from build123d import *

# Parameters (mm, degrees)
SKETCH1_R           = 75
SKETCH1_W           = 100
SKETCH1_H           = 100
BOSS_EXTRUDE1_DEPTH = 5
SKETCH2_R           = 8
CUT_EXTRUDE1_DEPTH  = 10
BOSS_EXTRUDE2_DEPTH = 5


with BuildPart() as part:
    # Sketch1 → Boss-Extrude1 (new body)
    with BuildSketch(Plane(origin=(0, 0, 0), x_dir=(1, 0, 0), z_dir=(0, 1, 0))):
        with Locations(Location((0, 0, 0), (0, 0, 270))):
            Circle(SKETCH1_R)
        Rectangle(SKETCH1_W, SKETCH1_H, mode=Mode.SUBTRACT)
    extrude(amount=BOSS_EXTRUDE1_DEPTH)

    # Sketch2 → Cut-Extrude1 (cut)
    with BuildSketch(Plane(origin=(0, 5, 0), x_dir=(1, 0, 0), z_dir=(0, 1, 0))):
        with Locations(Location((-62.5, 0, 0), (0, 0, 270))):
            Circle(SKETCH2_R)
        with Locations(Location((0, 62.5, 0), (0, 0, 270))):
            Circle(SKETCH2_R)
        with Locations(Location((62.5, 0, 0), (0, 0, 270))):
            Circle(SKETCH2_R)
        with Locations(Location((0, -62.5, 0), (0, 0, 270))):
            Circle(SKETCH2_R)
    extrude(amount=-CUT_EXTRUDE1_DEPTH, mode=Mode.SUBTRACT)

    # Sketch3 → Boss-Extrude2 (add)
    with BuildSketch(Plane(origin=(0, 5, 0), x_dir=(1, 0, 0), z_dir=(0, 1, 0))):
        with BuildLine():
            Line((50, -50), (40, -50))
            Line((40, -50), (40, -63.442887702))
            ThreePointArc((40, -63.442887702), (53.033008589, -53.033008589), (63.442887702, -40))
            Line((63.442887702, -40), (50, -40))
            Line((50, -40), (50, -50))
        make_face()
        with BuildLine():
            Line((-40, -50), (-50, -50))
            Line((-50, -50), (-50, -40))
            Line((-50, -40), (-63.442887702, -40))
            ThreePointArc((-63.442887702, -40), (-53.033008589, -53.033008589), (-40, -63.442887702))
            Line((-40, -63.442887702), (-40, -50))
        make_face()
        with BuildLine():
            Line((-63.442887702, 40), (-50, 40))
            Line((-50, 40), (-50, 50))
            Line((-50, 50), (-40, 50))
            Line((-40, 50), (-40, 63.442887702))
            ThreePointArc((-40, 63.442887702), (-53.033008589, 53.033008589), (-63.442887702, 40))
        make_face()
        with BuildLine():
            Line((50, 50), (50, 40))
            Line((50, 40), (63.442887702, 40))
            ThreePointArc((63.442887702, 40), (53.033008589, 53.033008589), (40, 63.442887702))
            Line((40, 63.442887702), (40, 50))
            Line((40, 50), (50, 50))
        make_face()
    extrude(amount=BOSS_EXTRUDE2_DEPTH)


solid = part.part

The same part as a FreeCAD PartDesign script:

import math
import FreeCAD as App
import Part
import Sketcher
from FreeCAD import Vector
Q = App.Units.Quantity


def add_polygon(sketch, points):
    """Adds a closed chain of lines whose ends are joined by coincident constraints."""
    first, n = sketch.GeometryCount, len(points)
    for a, b in zip(points, points[1:] + points[:1]):
        sketch.addGeometry(Part.LineSegment(App.Vector(*a, 0), App.Vector(*b, 0)), False)
    for i in range(n):
        sketch.addConstraint(Sketcher.Constraint("Coincident", first + i, 2, first + (i + 1) % n, 1))

doc = App.newDocument("Part")
body = doc.addObject("PartDesign::Body", "Body")

sketch1 = body.newObject("Sketcher::SketchObject", "Sketch")
sketch1.AttachmentSupport = (doc.getObject("XZ_Plane"), [""])
sketch1.MapMode = "FlatFace"
sketch1.addGeometry(Part.Circle(Vector(0, 0, 0), Vector(0, 0, 1), 75), False)
add_polygon(sketch1, [(50, 50), (-50, 50), (-50, -50), (50, -50)])
sketch1.addConstraint([
    Sketcher.Constraint("Horizontal", 1),
    Sketcher.Constraint("Vertical", 2),
    Sketcher.Constraint("Horizontal", 3),
    Sketcher.Constraint("Vertical", 4),
    Sketcher.Constraint("Coincident", 0, 3, -1, 1),
    Sketcher.Constraint("Symmetric", 1, 2, 3, 2, -1, 1),
    Sketcher.Constraint("Equal", 3, 2),
    Sketcher.Constraint("Diameter", 0, Q("150 mm")),
    Sketcher.Constraint("DistanceX", 1, 2, 1, 1, Q("100 mm")),
])
pad1 = body.newObject("PartDesign::Pad", "Pad")
pad1.Profile = sketch1
pad1.Length = 5
pad1.Reversed = True

sketch2 = body.newObject("Sketcher::SketchObject", "Sketch001")
sketch2.AttachmentSupport = (doc.getObject("XZ_Plane"), [""])
sketch2.MapMode = "FlatFace"
sketch2.AttachmentOffset = App.Placement(Vector(0, 0, -5), App.Rotation())
sketch2.addGeometry([
    Part.Circle(Vector(-62, 0, 0), Vector(0, 0, 1), 8),
    Part.Circle(Vector(0, -62, 0), Vector(0, 0, 1), 8),
    Part.Circle(Vector(62, 0, 0), Vector(0, 0, 1), 8),
    Part.Circle(Vector(0, 62, 0), Vector(0, 0, 1), 8),
], False)
sketch2.addConstraint([
    Sketcher.Constraint("Equal", 0, 1),
    Sketcher.Constraint("Equal", 1, 2),
    Sketcher.Constraint("Equal", 2, 3),
    Sketcher.Constraint("Symmetric", 0, 3, 2, 3, -1, 1),
    Sketcher.Constraint("Symmetric", 1, 3, 3, 3, -1, 1),
    Sketcher.Constraint("PointOnObject", 0, 3, -1),
    Sketcher.Constraint("PointOnObject", 1, 3, -2),
    Sketcher.Constraint("Diameter", 0, Q("16 mm")),
    Sketcher.Constraint("DistanceX", 0, 3, 2, 3, Q("125 mm")),
    Sketcher.Constraint("DistanceY", 1, 3, 3, 3, Q("125 mm")),
])
pocket1 = body.newObject("PartDesign::Pocket", "Pocket")
pocket1.Profile = sketch2
pocket1.Length = 10
pocket1.Reversed = True

sketch3 = body.newObject("Sketcher::SketchObject", "Sketch002")
sketch3.AttachmentSupport = (doc.getObject("XZ_Plane"), [""])
sketch3.MapMode = "FlatFace"
sketch3.AttachmentOffset = App.Placement(Vector(0, 0, -5), App.Rotation())
sketch3.addGeometry([
    Part.LineSegment(Vector(50, 50, 0), Vector(40, 50, 0)),
    Part.LineSegment(Vector(40, 50, 0), Vector(40, 63, 0)),
    Part.ArcOfCircle(Part.Circle(Vector(0, 0, 0), Vector(0, 0, 1), 75), math.radians(32), math.radians(58)),
    Part.LineSegment(Vector(63, 40, 0), Vector(50, 40, 0)),
    Part.LineSegment(Vector(50, 40, 0), Vector(50, 50, 0)),
    Part.LineSegment(Vector(-40, 50, 0), Vector(-50, 50, 0)),
    Part.LineSegment(Vector(-50, 50, 0), Vector(-50, 40, 0)),
    Part.LineSegment(Vector(-50, 40, 0), Vector(-63, 40, 0)),
    Part.ArcOfCircle(Part.Circle(Vector(0, 0, 0), Vector(0, 0, 1), 75), math.radians(122), math.radians(148)),
    Part.LineSegment(Vector(-40, 63, 0), Vector(-40, 50, 0)),
    Part.LineSegment(Vector(-63, -40, 0), Vector(-50, -40, 0)),
    Part.LineSegment(Vector(-50, -40, 0), Vector(-50, -50, 0)),
    Part.LineSegment(Vector(-50, -50, 0), Vector(-40, -50, 0)),
    Part.LineSegment(Vector(-40, -50, 0), Vector(-40, -63, 0)),
    Part.ArcOfCircle(Part.Circle(Vector(0, 0, 0), Vector(0, 0, 1), 75), math.radians(-148), math.radians(-122)),
    Part.LineSegment(Vector(50, -50, 0), Vector(50, -40, 0)),
    Part.LineSegment(Vector(50, -40, 0), Vector(63, -40, 0)),
    Part.ArcOfCircle(Part.Circle(Vector(0, 0, 0), Vector(0, 0, 1), 75), math.radians(-58), math.radians(-32)),
    Part.LineSegment(Vector(40, -63, 0), Vector(40, -50, 0)),
    Part.LineSegment(Vector(40, -50, 0), Vector(50, -50, 0)),
], False)
sketch3.addConstraint([
    Sketcher.Constraint("Coincident", 0, 2, 1, 1),
    Sketcher.Constraint("Coincident", 1, 2, 2, 2),
    Sketcher.Constraint("Coincident", 2, 1, 3, 1),
    Sketcher.Constraint("Coincident", 3, 2, 4, 1),
    Sketcher.Constraint("Coincident", 4, 2, 0, 1),
    Sketcher.Constraint("Coincident", 5, 2, 6, 1),
    Sketcher.Constraint("Coincident", 6, 2, 7, 1),
    Sketcher.Constraint("Coincident", 7, 2, 8, 2),
    Sketcher.Constraint("Coincident", 8, 1, 9, 1),
    Sketcher.Constraint("Coincident", 9, 2, 5, 1),
    Sketcher.Constraint("Coincident", 10, 2, 11, 1),
    Sketcher.Constraint("Coincident", 11, 2, 12, 1),
    Sketcher.Constraint("Coincident", 12, 2, 13, 1),
    Sketcher.Constraint("Coincident", 13, 2, 14, 2),
    Sketcher.Constraint("Coincident", 14, 1, 10, 1),
    Sketcher.Constraint("Coincident", 15, 2, 16, 1),
    Sketcher.Constraint("Coincident", 16, 2, 17, 2),
    Sketcher.Constraint("Coincident", 17, 1, 18, 1),
    Sketcher.Constraint("Coincident", 18, 2, 19, 1),
    Sketcher.Constraint("Coincident", 19, 2, 15, 1),
    Sketcher.Constraint("Horizontal", 0),
    Sketcher.Constraint("Vertical", 1),
    Sketcher.Constraint("Horizontal", 3),
    Sketcher.Constraint("Vertical", 4),
    Sketcher.Constraint("Horizontal", 5),
    Sketcher.Constraint("Vertical", 6),
    Sketcher.Constraint("Horizontal", 7),
    Sketcher.Constraint("Vertical", 9),
    Sketcher.Constraint("Horizontal", 10),
    Sketcher.Constraint("Vertical", 11),
    Sketcher.Constraint("Horizontal", 12),
    Sketcher.Constraint("Vertical", 13),
    Sketcher.Constraint("Vertical", 15),
    Sketcher.Constraint("Horizontal", 16),
    Sketcher.Constraint("Vertical", 18),
    Sketcher.Constraint("Horizontal", 19),
    Sketcher.Constraint("Coincident", 2, 3, -1, 1),
    Sketcher.Constraint("Coincident", 8, 3, -1, 1),
    Sketcher.Constraint("Coincident", 14, 3, -1, 1),
    Sketcher.Constraint("Coincident", 17, 3, -1, 1),
    Sketcher.Constraint("Equal", 2, 8),
    Sketcher.Constraint("Equal", 8, 14),
    Sketcher.Constraint("Equal", 14, 17),
    Sketcher.Constraint("Symmetric", 3, 2, 10, 2, -1, 1),
    Sketcher.Constraint("Symmetric", 0, 2, 12, 2, -1, 1),
    Sketcher.Constraint("Symmetric", 6, 2, 15, 2, -1, 1),
    Sketcher.Constraint("Symmetric", 9, 2, 18, 2, -1, 1),
    Sketcher.Constraint("Symmetric", 4, 2, 5, 2, -2),
    Sketcher.Constraint("Horizontal", 3, 2, 6, 2),
    Sketcher.Constraint("Horizontal", 1, 2, 8, 1),
    Sketcher.Constraint("Equal", 16, 1),
    Sketcher.Constraint("Equal", 19, 4),
    Sketcher.Constraint("Radius", 2, Q("75 mm")),
    Sketcher.Constraint("DistanceX", 0, 2, 0, 1, Q("10 mm")),
    Sketcher.Constraint("DistanceX", -1, 1, 0, 2, Q("40 mm")),
])
pad2 = body.newObject("PartDesign::Pad", "Pad001")
pad2.Profile = sketch3
pad2.Length = 5
pad2.Reversed = True

doc.recompute()
